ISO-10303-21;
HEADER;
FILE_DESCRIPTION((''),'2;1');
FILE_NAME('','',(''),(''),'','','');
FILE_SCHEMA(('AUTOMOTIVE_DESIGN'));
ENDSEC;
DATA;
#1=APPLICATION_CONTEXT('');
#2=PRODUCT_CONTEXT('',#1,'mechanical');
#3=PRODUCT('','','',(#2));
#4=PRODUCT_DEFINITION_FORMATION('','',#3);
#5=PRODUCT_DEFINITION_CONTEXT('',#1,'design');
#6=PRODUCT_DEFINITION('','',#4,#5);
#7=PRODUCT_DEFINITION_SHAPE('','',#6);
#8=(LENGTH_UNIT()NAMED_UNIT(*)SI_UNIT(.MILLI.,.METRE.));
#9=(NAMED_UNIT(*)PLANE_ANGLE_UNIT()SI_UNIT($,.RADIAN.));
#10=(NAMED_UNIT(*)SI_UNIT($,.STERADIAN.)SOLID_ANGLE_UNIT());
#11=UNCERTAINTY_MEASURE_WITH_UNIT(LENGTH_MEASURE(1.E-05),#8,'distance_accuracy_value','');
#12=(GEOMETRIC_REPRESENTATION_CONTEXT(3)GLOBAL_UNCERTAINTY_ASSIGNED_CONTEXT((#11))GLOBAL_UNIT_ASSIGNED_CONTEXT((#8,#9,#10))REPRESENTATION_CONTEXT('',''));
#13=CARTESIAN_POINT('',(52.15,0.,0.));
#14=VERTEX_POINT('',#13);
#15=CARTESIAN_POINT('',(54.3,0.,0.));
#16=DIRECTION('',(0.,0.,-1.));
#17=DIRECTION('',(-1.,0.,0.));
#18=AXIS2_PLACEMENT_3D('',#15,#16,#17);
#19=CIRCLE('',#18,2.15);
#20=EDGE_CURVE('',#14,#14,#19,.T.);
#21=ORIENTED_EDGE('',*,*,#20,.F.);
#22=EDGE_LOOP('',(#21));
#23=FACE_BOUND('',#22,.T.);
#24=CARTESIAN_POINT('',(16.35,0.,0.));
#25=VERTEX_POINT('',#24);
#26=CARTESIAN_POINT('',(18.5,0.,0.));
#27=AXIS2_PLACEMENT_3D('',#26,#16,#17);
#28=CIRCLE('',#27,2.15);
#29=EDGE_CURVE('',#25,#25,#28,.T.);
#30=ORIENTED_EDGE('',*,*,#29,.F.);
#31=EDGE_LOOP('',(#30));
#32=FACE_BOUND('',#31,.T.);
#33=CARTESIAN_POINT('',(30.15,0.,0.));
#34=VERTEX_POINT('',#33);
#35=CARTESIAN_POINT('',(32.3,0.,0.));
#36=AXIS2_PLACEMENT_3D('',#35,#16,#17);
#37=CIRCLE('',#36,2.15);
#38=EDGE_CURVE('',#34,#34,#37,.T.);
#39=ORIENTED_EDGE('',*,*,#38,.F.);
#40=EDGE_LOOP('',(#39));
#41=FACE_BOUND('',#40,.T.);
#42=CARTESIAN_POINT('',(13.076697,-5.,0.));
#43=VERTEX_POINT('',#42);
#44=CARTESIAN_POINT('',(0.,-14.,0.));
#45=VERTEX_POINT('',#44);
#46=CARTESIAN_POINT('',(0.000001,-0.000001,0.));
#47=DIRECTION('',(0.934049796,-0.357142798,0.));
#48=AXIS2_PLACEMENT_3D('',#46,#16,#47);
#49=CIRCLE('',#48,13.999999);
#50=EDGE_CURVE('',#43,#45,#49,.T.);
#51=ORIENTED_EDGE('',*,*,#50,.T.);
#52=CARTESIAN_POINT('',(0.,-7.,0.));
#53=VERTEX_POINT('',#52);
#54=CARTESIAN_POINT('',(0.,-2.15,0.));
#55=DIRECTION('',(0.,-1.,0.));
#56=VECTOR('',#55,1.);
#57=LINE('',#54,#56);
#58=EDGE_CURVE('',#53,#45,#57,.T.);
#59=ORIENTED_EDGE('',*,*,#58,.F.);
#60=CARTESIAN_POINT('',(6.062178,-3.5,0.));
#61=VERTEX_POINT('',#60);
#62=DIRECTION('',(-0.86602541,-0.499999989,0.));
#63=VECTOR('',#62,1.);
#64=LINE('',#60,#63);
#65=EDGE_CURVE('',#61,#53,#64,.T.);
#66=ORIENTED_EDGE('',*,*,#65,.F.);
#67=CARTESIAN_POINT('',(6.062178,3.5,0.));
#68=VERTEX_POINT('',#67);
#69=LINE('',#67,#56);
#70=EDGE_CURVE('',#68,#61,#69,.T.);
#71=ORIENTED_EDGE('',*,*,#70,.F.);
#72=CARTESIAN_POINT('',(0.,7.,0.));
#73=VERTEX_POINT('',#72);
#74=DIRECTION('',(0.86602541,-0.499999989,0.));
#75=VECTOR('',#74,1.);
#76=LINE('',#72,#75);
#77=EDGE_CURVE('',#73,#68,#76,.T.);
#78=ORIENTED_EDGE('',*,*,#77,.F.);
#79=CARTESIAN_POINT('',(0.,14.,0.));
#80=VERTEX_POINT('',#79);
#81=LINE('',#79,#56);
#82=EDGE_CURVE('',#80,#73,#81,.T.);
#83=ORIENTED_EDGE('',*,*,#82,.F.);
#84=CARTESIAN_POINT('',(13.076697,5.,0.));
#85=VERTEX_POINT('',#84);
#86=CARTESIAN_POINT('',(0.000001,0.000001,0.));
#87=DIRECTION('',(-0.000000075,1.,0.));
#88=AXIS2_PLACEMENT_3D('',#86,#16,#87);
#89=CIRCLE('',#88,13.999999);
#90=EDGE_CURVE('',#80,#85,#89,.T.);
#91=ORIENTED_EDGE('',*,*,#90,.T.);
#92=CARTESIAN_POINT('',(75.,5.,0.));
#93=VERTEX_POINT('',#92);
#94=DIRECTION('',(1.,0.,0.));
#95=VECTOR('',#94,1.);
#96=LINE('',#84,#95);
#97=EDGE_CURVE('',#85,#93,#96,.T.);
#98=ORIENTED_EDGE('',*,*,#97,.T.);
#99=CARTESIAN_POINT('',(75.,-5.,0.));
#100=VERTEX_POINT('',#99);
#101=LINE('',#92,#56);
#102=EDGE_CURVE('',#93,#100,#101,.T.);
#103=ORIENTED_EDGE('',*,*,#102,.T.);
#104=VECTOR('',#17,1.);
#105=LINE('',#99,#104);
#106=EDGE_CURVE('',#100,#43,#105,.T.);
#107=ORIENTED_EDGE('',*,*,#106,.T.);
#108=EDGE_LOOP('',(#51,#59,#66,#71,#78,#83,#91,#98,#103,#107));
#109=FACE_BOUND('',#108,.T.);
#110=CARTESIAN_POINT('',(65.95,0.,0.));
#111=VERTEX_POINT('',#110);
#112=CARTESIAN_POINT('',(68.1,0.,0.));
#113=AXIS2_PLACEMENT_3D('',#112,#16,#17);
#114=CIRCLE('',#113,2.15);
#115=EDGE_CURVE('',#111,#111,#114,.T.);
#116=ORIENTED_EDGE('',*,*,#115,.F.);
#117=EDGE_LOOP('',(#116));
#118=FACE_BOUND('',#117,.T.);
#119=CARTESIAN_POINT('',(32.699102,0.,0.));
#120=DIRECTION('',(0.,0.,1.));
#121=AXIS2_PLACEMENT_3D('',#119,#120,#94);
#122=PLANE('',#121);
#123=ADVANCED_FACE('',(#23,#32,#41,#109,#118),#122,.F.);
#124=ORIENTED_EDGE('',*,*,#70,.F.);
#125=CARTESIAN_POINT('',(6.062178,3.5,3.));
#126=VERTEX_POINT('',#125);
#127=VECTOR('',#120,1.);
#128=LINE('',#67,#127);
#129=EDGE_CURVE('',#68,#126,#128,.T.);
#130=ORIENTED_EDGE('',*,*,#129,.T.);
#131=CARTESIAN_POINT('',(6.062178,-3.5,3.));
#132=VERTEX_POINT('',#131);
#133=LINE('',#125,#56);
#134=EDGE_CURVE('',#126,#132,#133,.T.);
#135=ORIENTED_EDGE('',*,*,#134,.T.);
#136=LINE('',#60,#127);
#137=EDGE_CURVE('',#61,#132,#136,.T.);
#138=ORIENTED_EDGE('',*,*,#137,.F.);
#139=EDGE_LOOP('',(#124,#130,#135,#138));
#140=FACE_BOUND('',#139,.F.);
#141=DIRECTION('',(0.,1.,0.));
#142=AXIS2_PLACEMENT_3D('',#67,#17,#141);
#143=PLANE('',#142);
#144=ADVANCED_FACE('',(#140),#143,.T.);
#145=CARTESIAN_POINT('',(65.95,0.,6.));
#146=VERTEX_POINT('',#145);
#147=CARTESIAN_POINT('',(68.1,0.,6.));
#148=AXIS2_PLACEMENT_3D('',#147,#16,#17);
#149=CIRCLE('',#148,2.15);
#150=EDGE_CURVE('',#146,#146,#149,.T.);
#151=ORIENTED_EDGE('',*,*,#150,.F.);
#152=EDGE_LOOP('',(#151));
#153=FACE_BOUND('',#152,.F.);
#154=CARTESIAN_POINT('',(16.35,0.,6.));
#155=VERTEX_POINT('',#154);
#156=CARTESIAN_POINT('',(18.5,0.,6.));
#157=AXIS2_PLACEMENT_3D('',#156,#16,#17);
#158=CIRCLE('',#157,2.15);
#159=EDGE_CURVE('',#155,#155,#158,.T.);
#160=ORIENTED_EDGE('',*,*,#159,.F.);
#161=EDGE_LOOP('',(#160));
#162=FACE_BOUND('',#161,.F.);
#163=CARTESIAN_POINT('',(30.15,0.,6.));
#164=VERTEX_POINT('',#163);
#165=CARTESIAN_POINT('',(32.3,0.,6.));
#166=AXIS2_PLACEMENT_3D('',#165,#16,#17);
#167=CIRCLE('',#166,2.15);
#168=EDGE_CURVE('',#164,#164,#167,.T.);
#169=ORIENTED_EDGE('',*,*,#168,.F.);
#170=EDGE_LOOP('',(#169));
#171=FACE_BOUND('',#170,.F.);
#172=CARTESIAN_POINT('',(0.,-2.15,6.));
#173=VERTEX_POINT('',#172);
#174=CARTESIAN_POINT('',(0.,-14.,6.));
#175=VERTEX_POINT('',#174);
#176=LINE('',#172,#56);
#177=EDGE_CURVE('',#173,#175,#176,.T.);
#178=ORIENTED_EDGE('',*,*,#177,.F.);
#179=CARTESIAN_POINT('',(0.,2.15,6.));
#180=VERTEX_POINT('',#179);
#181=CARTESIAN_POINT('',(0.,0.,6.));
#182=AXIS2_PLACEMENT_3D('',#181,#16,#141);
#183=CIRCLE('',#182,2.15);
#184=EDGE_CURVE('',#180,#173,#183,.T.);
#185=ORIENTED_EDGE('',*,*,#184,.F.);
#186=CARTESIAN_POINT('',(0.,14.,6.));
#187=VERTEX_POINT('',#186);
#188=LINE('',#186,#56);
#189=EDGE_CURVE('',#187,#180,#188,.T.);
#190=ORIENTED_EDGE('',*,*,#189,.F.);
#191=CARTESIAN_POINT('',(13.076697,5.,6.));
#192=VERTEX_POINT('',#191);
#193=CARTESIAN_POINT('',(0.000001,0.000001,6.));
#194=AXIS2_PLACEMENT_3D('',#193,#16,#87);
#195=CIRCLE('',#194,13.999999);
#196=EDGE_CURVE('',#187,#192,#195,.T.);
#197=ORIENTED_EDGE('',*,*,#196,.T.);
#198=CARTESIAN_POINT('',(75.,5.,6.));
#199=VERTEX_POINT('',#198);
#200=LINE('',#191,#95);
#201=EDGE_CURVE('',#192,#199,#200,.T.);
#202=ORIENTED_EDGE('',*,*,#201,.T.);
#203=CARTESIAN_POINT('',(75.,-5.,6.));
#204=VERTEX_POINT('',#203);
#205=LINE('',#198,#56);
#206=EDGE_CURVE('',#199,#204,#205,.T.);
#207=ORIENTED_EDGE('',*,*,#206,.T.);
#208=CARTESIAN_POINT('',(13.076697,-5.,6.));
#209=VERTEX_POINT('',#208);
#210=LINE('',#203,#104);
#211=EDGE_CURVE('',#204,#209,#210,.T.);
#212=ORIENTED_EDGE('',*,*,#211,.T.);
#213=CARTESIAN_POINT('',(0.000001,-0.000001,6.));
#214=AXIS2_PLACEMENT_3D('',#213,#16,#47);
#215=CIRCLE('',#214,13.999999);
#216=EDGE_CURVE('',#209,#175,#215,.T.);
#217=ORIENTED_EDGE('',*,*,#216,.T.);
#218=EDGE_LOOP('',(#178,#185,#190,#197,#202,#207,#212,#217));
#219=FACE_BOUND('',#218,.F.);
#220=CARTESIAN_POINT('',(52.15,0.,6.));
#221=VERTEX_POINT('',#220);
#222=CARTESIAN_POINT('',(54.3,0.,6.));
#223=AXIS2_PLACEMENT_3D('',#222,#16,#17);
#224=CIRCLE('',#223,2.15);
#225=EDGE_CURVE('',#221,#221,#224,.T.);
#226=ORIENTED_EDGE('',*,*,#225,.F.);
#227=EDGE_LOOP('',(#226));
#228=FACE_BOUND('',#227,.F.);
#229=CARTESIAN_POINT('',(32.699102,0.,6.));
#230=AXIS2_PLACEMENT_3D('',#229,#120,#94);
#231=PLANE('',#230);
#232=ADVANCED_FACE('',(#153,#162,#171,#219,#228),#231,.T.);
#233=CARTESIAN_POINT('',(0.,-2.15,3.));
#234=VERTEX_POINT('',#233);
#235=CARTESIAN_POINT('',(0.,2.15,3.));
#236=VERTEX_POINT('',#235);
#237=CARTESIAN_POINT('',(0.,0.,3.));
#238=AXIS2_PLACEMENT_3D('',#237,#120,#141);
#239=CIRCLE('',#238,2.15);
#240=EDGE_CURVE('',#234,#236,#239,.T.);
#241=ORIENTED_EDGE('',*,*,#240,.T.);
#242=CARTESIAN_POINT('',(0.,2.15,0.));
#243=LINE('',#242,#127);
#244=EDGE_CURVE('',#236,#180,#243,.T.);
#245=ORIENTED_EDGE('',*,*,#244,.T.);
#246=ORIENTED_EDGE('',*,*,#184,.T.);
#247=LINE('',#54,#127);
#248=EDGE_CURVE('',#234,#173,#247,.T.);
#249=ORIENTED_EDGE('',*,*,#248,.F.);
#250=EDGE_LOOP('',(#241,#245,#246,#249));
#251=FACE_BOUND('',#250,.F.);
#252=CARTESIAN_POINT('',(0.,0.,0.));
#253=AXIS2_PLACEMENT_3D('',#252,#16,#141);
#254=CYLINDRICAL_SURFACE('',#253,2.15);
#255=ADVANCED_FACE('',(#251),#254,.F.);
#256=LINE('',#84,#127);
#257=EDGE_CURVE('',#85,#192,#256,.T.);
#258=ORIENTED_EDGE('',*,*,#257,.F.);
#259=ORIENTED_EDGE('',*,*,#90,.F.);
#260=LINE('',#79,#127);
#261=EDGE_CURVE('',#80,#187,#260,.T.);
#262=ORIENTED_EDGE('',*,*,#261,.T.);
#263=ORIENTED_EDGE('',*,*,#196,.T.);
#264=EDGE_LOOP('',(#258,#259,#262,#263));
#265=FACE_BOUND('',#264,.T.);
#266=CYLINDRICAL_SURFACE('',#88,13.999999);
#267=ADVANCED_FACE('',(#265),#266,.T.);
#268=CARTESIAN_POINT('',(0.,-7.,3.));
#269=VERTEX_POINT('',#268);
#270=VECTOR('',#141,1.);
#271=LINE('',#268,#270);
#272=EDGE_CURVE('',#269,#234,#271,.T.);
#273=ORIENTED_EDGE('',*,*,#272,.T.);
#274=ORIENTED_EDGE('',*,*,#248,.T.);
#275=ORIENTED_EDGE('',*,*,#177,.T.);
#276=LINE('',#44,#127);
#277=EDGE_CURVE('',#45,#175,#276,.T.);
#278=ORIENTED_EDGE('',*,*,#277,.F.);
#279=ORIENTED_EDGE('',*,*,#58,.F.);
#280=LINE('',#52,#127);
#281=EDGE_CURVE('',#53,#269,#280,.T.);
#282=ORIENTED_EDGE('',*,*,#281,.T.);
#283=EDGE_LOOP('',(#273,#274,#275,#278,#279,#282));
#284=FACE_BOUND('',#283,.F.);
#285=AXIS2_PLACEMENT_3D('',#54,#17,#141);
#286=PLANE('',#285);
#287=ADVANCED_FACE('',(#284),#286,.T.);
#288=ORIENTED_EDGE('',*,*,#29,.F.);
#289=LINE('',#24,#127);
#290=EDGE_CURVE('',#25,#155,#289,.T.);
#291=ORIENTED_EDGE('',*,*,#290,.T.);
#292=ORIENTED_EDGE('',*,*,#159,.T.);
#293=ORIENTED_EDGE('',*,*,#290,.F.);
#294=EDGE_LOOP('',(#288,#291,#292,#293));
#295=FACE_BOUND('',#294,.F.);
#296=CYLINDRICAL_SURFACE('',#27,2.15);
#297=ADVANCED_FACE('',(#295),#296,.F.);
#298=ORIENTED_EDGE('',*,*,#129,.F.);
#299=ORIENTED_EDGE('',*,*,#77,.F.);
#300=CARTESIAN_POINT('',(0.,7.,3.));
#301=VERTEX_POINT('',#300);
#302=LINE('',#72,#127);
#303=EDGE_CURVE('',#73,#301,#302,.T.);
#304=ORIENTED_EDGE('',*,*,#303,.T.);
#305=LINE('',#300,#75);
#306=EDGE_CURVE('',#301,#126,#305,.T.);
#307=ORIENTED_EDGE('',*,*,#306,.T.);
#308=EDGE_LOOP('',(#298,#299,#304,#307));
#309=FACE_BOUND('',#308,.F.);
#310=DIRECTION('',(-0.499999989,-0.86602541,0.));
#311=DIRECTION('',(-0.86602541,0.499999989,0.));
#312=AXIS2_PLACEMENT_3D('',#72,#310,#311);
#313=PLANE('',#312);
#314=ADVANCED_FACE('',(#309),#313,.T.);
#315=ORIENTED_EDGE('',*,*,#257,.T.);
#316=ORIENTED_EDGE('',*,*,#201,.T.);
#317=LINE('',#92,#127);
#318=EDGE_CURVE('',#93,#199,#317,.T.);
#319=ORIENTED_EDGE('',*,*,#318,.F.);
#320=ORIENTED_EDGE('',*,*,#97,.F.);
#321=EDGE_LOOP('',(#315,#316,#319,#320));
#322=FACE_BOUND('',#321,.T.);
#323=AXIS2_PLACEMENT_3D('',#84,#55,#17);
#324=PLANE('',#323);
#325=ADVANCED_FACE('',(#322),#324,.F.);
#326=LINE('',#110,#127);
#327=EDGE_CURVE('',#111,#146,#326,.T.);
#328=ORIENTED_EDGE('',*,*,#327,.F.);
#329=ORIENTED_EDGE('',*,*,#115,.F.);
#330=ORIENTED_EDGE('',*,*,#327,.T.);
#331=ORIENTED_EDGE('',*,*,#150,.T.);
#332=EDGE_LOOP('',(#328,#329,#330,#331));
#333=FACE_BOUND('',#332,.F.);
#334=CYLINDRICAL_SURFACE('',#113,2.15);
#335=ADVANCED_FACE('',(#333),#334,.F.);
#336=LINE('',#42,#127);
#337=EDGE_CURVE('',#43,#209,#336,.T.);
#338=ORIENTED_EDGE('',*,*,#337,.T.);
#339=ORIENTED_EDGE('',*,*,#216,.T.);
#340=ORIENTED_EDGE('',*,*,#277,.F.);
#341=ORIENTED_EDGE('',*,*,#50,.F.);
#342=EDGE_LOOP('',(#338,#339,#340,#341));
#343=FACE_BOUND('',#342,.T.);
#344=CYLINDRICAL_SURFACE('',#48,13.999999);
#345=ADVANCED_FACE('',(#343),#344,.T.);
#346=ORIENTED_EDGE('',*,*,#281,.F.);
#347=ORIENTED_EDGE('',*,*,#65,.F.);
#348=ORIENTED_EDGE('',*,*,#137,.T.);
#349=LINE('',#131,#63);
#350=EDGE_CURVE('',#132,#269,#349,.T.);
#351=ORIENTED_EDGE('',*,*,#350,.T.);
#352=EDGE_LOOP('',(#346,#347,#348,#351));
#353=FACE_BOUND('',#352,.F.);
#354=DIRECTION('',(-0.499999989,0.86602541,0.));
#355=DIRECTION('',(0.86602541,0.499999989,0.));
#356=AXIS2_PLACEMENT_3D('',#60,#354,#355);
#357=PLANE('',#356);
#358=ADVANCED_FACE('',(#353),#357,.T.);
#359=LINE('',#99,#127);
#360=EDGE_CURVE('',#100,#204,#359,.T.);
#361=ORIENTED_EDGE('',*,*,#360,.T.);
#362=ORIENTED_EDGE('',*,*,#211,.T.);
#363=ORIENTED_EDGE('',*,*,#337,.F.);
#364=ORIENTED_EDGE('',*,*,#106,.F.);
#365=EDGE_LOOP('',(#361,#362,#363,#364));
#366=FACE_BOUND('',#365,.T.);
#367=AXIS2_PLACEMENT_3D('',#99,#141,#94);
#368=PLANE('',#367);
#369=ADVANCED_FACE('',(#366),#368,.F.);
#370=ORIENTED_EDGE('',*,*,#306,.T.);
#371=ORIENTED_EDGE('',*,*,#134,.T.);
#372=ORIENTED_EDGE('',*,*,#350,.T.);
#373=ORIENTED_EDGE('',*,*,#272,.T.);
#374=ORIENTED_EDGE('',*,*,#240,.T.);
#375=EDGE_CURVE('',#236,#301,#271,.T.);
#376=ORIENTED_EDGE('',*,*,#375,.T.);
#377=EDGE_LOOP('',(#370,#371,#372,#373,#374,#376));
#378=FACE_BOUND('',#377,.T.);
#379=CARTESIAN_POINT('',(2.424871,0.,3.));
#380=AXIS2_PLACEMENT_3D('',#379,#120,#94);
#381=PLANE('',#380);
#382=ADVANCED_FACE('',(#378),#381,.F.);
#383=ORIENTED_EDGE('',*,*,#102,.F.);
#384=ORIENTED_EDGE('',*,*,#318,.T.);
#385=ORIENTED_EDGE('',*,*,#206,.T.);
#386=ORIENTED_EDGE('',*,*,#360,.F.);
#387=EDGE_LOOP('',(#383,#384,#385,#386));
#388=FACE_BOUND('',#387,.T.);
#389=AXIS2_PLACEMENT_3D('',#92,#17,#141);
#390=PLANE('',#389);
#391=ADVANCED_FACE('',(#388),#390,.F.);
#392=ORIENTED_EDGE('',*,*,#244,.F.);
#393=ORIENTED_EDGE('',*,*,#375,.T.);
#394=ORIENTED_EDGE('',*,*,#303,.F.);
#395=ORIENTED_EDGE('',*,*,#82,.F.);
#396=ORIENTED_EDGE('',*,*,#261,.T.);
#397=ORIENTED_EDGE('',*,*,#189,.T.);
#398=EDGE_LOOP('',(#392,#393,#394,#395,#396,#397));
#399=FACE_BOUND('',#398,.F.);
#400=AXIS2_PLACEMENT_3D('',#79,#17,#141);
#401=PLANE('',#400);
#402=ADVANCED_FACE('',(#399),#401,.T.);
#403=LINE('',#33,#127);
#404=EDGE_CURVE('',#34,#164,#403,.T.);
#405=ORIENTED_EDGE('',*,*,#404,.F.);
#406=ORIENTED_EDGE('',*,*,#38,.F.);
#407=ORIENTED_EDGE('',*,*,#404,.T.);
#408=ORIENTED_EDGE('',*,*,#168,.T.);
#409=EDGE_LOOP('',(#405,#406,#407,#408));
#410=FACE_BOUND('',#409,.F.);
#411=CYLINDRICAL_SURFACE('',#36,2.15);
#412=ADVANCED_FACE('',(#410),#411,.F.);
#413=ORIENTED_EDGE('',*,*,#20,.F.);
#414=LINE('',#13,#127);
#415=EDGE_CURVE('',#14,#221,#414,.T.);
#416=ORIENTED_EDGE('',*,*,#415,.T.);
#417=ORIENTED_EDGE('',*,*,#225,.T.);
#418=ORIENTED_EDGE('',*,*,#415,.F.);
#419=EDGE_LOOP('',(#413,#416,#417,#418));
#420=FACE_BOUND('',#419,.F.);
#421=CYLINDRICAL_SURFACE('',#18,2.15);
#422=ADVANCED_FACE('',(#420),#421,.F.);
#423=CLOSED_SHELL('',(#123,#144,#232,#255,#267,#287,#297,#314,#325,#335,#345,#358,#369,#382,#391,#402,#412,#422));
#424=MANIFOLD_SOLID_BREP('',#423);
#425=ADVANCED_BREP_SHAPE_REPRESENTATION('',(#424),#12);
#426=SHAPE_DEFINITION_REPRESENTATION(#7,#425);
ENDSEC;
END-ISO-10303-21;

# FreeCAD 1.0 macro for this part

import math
import FreeCAD as App
import Part
import Sketcher
from FreeCAD import Vector
Q = App.Units.Quantity


def add_polygon(sketch, points):
    """Adds a closed chain of lines whose ends are joined by coincident constraints."""
    first, n = sketch.GeometryCount, len(points)
    for a, b in zip(points, points[1:] + points[:1]):
        sketch.addGeometry(Part.LineSegment(App.Vector(*a, 0), App.Vector(*b, 0)), False)
    for i in range(n):
        sketch.addConstraint(Sketcher.Constraint("Coincident", first + i, 2, first + (i + 1) % n, 1))

doc = App.newDocument("Part")
body = doc.addObject("PartDesign::Body", "Body")

# Sketch on XY plane
sketch1 = doc.addObject("Sketcher::SketchObject", "Sketch")
body.addObject(sketch1)
sketch1.AttachmentSupport = (doc.XY_Plane, [""])
sketch1.MapMode = "FlatFace"
sketch1.addGeometry([
    Part.LineSegment(Vector(-13.1, 5, 0), Vector(-75, 5, 0)),  # 0
    Part.LineSegment(Vector(-75, 5, 0), Vector(-75, -5, 0)),  # 1
    Part.LineSegment(Vector(-75, -5, 0), Vector(-13.1, -5, 0)),  # 2
    Part.ArcOfCircle(Part.Circle(Vector(0, 0, 0), Vector(0, 0, 1), 14), math.radians(-159), math.radians(-90)),  # 3
    Part.LineSegment(Vector(0, -14, 0), Vector(0, -2.1, 0)),  # 4
    Part.ArcOfCircle(Part.Circle(Vector(0, 0, 0), Vector(0, 0, 1), 2.1), math.radians(90), math.radians(270)),  # 5
    Part.LineSegment(Vector(0, 2.1, 0), Vector(0, 14, 0)),  # 6
    Part.ArcOfCircle(Part.Circle(Vector(0, 0, 0), Vector(0, 0, 1), 14), math.radians(90), math.radians(159)),  # 7
    Part.Circle(Vector(-68.1, 0, 0), Vector(0, 0, 1), 2.1),  # 8
    Part.Circle(Vector(-54.3, 0, 0), Vector(0, 0, 1), 2.1),  # 9
    Part.Circle(Vector(-32.3, 0, 0), Vector(0, 0, 1), 2.1),  # 10
    Part.Circle(Vector(-18.5, 0, 0), Vector(0, 0, 1), 2.1),  # 11
], False)
sketch1.addConstraint([
    Sketcher.Constraint("Coincident", 0, 2, 1, 1),
    Sketcher.Constraint("Coincident", 1, 2, 2, 1),
    Sketcher.Constraint("Coincident", 2, 2, 3, 1),
    Sketcher.Constraint("Coincident", 3, 2, 4, 1),
    Sketcher.Constraint("Coincident", 4, 2, 5, 2),
    Sketcher.Constraint("Coincident", 5, 1, 6, 1),
    Sketcher.Constraint("Coincident", 6, 2, 7, 1),
    Sketcher.Constraint("Coincident", 7, 2, 0, 1),
    Sketcher.Constraint("Horizontal", 0),
    Sketcher.Constraint("Vertical", 1),
    Sketcher.Constraint("Horizontal", 2),
    Sketcher.Constraint("Vertical", 4),
    Sketcher.Constraint("Vertical", 6),
    Sketcher.Constraint("Coincident", 3, 3, -1, 1),
    Sketcher.Constraint("Coincident", 5, 3, -1, 1),
    Sketcher.Constraint("Coincident", 7, 3, -1, 1),
    Sketcher.Constraint("Equal", 3, 7),
    Sketcher.Constraint("Equal", 5, 8),
    Sketcher.Constraint("Equal", 8, 9),
    Sketcher.Constraint("Equal", 9, 10),
    Sketcher.Constraint("Equal", 10, 11),
    Sketcher.Constraint("PointOnObject", 8, 3, -1),
    Sketcher.Constraint("PointOnObject", 9, 3, -1),
    Sketcher.Constraint("PointOnObject", 10, 3, -1),
    Sketcher.Constraint("PointOnObject", 11, 3, -1),
    Sketcher.Constraint("PointOnObject", 3, 2, -2),
    Sketcher.Constraint("PointOnObject", 5, 1, -2),
    Sketcher.Constraint("Vertical", 2, 2, 7, 2),
    Sketcher.Constraint("Radius", 3, 13.999999),
    Sketcher.Constraint("Diameter", 8, 4.3),
    Sketcher.Constraint("DistanceY", 1, 2, 1, 1, 10.0),
    Sketcher.Constraint("DistanceX", 0, 2, -1, 1, 75.0),
    Sketcher.Constraint("DistanceX", 9, 3, 10, 3, 22.0),
    Sketcher.Constraint("DistanceX", 8, 3, -1, 1, 68.1),
    Sketcher.Constraint("DistanceX", 9, 3, -1, 1, 54.3),
    Sketcher.Constraint("DistanceX", 11, 3, -1, 1, 18.5),
])
pad1 = doc.addObject("PartDesign::Pad", "Pad")
body.addObject(pad1)
pad1.Profile = sketch1
pad1.Length = 6

# Sketch on XY plane
sketch2 = doc.addObject("Sketcher::SketchObject", "Sketch001")
body.addObject(sketch2)
sketch2.AttachmentSupport = (doc.XY_Plane, [""])
sketch2.MapMode = "FlatFace"
add_polygon(sketch2, [(0, 7), (-6, 4), (-6, -4), (0, -7)])  # lines 0-3
sketch2.addConstraint([
    Sketcher.Constraint("Vertical", 1),
    Sketcher.Constraint("Vertical", 3),
    Sketcher.Constraint("Symmetric", 2, 2, 3, 2, -1, 1),
    Sketcher.Constraint("Equal", 0, 2),
    Sketcher.Constraint("DistanceY", 1, 2, 1, 1, 7.0),
    Sketcher.Constraint("DistanceY", 3, 1, 3, 2, 14.0),
    Sketcher.Constraint("Angle", 0, Q("-150.000001 deg")),
])
pocket1 = doc.addObject("PartDesign::Pocket", "Pocket")
body.addObject(pocket1)
pocket1.Profile = sketch2
pocket1.Length = 3
pocket1.Reversed = True
body2 = doc.addObject("PartDesign::Body", "Body001")
doc.recompute()

mirroring = doc.addObject("Part::Mirroring", "Mirroring")
mirroring.Source = body
mirroring.Base = Vector(0, 0, 0)
mirroring.Normal = Vector(1, 0, 0)
body2.BaseFeature = mirroring
doc.recompute()
body.Visibility = False
mirroring.Visibility = False

doc.recompute()
